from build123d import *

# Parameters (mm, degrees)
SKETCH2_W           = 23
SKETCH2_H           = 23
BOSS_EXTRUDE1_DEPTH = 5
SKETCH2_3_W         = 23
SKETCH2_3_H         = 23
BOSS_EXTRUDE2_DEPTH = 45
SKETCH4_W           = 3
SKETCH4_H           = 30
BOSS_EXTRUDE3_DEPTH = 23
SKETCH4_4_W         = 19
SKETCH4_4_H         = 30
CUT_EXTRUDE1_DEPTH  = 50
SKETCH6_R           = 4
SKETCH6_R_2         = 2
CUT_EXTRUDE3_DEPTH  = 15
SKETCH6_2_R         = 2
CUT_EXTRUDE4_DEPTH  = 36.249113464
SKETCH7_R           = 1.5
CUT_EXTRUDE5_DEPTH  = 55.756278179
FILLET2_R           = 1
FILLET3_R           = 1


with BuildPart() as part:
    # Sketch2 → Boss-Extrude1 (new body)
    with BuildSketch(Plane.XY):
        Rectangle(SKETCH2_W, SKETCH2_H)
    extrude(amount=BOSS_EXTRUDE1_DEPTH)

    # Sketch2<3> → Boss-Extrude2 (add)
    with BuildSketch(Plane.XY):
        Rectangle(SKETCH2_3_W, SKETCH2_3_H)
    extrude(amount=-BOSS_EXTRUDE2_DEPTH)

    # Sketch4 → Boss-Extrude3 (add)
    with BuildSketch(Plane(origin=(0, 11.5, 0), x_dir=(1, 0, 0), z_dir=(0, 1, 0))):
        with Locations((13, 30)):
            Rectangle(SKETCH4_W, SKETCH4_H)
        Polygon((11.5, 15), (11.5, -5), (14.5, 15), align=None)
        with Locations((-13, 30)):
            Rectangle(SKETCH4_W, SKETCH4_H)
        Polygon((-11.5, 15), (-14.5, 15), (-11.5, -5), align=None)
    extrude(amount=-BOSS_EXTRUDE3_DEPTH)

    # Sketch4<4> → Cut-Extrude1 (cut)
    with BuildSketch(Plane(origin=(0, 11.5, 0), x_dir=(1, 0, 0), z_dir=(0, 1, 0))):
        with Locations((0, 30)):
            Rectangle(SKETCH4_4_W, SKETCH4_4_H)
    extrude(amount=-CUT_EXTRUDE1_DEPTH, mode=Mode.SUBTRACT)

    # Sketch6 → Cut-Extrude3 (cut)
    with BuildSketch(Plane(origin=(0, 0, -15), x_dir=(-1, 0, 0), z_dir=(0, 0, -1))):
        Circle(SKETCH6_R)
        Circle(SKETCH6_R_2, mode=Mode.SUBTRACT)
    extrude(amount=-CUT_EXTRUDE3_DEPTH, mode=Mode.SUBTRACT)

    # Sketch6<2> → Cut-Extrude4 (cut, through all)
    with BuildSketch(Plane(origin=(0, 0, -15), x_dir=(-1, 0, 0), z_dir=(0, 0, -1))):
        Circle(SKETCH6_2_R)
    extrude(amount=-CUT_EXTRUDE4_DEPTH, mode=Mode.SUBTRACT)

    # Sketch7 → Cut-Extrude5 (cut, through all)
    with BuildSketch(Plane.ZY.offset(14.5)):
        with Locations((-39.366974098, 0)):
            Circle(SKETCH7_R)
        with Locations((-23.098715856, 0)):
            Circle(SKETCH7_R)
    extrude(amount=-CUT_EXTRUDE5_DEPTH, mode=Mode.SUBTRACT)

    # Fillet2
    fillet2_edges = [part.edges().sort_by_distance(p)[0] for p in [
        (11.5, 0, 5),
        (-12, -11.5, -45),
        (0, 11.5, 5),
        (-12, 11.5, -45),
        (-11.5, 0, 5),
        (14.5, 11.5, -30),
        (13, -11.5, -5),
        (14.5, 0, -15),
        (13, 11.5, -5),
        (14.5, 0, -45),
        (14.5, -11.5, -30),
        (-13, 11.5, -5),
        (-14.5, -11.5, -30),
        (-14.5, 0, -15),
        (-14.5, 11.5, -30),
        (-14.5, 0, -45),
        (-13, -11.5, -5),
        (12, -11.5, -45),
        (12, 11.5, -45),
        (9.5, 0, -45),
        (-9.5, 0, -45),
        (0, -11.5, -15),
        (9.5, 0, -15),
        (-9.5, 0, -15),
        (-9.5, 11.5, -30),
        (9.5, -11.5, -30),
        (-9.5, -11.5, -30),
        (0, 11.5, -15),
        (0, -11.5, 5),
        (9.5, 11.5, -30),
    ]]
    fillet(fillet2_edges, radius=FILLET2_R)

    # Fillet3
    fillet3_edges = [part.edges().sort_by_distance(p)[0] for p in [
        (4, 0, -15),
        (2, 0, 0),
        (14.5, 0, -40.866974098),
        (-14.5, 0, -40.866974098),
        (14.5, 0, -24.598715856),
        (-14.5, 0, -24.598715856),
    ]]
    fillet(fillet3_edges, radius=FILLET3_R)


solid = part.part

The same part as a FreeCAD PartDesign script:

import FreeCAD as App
import Part
import Sketcher
from FreeCAD import Vector
Q = App.Units.Quantity


def edges_at(feature, points):
    """Names of the edges that pass closest to the given points."""
    edges = feature.Shape.Edges
    near = lambda p: min(range(len(edges)), key=lambda i: edges[i].distToShape(Part.Vertex(*p))[0])
    return sorted({f"Edge{near(p) + 1}" for p in points})


def add_polygon(sketch, points):
    """Adds a closed chain of lines whose ends are joined by coincident constraints."""
    first, n = sketch.GeometryCount, len(points)
    for a, b in zip(points, points[1:] + points[:1]):
        sketch.addGeometry(Part.LineSegment(App.Vector(*a, 0), App.Vector(*b, 0)), False)
    for i in range(n):
        sketch.addConstraint(Sketcher.Constraint("Coincident", first + i, 2, first + (i + 1) % n, 1))

doc = App.newDocument("Part")
body = doc.addObject("PartDesign::Body", "Body")

sketch1 = body.newObject("Sketcher::SketchObject", "Sketch")
sketch1.AttachmentSupport = (doc.getObject("XY_Plane"), [""])
sketch1.MapMode = "FlatFace"
add_polygon(sketch1, [(-11.5, 11.5), (-11.5, -11.5), (11.5, -11.5), (11.5, 11.5)])
sketch1.addConstraint([
    Sketcher.Constraint("Vertical", 0),
    Sketcher.Constraint("Horizontal", 1),
    Sketcher.Constraint("Vertical", 2),
    Sketcher.Constraint("Horizontal", 3),
    Sketcher.Constraint("Symmetric", 0, 2, 2, 2, -1, 1),
    Sketcher.Constraint("Equal", 3, 0),
    Sketcher.Constraint("DistanceX", 1, 1, 1, 2, Q("23 mm")),
])
pad1 = body.newObject("PartDesign::Pad", "Pad")
pad1.Profile = sketch1
pad1.Length = 5

sketch2 = body.newObject("Sketcher::SketchObject", "Sketch001")
sketch2.AttachmentSupport = (doc.getObject("XY_Plane"), [""])
sketch2.MapMode = "FlatFace"
add_polygon(sketch2, [(-11.5, 11.5), (-11.5, -11.5), (11.5, -11.5), (11.5, 11.5)])
sketch2.addConstraint([
    Sketcher.Constraint("Vertical", 0),
    Sketcher.Constraint("Horizontal", 1),
    Sketcher.Constraint("Vertical", 2),
    Sketcher.Constraint("Horizontal", 3),
    Sketcher.Constraint("Symmetric", 0, 2, 2, 2, -1, 1),
    Sketcher.Constraint("Equal", 3, 0),
    Sketcher.Constraint("DistanceX", 1, 1, 1, 2, Q("23 mm")),
])
pad2 = body.newObject("PartDesign::Pad", "Pad001")
pad2.Profile = sketch2
pad2.Length = 45
pad2.Reversed = True

sketch3 = body.newObject("Sketcher::SketchObject", "Sketch002")
sketch3.AttachmentSupport = (doc.getObject("XZ_Plane"), [""])
sketch3.MapMode = "FlatFace"
sketch3.AttachmentOffset = App.Placement(Vector(0, 0, -11.5), App.Rotation())
add_polygon(sketch3, [(11.5, -45), (11.5, 5), (14.5, -15), (14.5, -45)])
add_polygon(sketch3, [(-14.5, -45), (-14.5, -15), (-11.5, 5), (-11.5, -45)])
sketch3.addConstraint([
    Sketcher.Constraint("Vertical", 0),
    Sketcher.Constraint("Vertical", 2),
    Sketcher.Constraint("Horizontal", 3),
    Sketcher.Constraint("Vertical", 4),
    Sketcher.Constraint("Vertical", 6),
    Sketcher.Constraint("Horizontal", 7),
    Sketcher.Constraint("Symmetric", 1, 2, 4, 2, -2),
    Sketcher.Constraint("Symmetric", 0, 2, 5, 2, -2),
    Sketcher.Constraint("Horizontal", 3, 2, 6, 2),
    Sketcher.Constraint("DistanceX", 3, 2, 3, 1, Q("3 mm")),
    Sketcher.Constraint("DistanceY", 0, 1, 0, 2, Q("50 mm")),
    Sketcher.Constraint("DistanceY", 2, 2, 2, 1, Q("30 mm")),
    Sketcher.Constraint("DistanceY", -1, 1, 0, 2, Q("5 mm")),
    Sketcher.Constraint("DistanceX", 4, 2, 1, 2, Q("29 mm")),
])
pad3 = body.newObject("PartDesign::Pad", "Pad002")
pad3.Profile = sketch3
pad3.Length = 23

sketch4 = body.newObject("Sketcher::SketchObject", "Sketch003")
sketch4.AttachmentSupport = (doc.getObject("XZ_Plane"), [""])
sketch4.MapMode = "FlatFace"
sketch4.AttachmentOffset = App.Placement(Vector(0, 0, -11.5), App.Rotation())
add_polygon(sketch4, [(-9.5, -45), (-9.5, -15), (9.5, -15), (9.5, -45)])
sketch4.addConstraint([
    Sketcher.Constraint("Vertical", 0),
    Sketcher.Constraint("Horizontal", 1),
    Sketcher.Constraint("Vertical", 2),
    Sketcher.Constraint("Horizontal", 3),
    Sketcher.Constraint("DistanceX", 1, 1, 1, 2, Q("19 mm")),
    Sketcher.Constraint("DistanceY", 0, 1, 0, 2, Q("30 mm")),
    Sketcher.Constraint("DistanceY", 0, 2, -1, 1, Q("15 mm")),
    Sketcher.Constraint("DistanceX", 0, 2, -1, 1, Q("9.5 mm")),
])
pocket1 = body.newObject("PartDesign::Pocket", "Pocket")
pocket1.Profile = sketch4
pocket1.Length = 50
pocket1.Reversed = True

sketch5 = body.newObject("Sketcher::SketchObject", "Sketch004")
sketch5.AttachmentSupport = (doc.getObject("XY_Plane"), [""])
sketch5.MapMode = "FlatFace"
sketch5.AttachmentOffset = App.Placement(Vector(0, 0, -15), App.Rotation())
sketch5.addGeometry([
    Part.Circle(Vector(0, 0, 0), Vector(0, 0, 1), 4),
    Part.Circle(Vector(0, 0, 0), Vector(0, 0, 1), 2),
], False)
sketch5.addConstraint([
    Sketcher.Constraint("Coincident", 0, 3, -1, 1),
    Sketcher.Constraint("Coincident", 1, 3, -1, 1),
    Sketcher.Constraint("Diameter", 0, Q("8 mm")),
    Sketcher.Constraint("Diameter", 1, Q("4 mm")),
])
pocket2 = body.newObject("PartDesign::Pocket", "Pocket001")
pocket2.Profile = sketch5
pocket2.Length = 15
pocket2.Reversed = True

sketch6 = body.newObject("Sketcher::SketchObject", "Sketch005")
sketch6.AttachmentSupport = (doc.getObject("XY_Plane"), [""])
sketch6.MapMode = "FlatFace"
sketch6.AttachmentOffset = App.Placement(Vector(0, 0, -15), App.Rotation())
sketch6.addGeometry(Part.Circle(Vector(0, 0, 0), Vector(0, 0, 1), 2), False)
sketch6.addConstraint([
    Sketcher.Constraint("Coincident", 0, 3, -1, 1),
    Sketcher.Constraint("Diameter", 0, Q("4 mm")),
])
pocket3 = body.newObject("PartDesign::Pocket", "Pocket002")
pocket3.Profile = sketch6
pocket3.Type = "ThroughAll"
pocket3.Reversed = True

sketch7 = body.newObject("Sketcher::SketchObject", "Sketch006")
sketch7.AttachmentSupport = (doc.getObject("YZ_Plane"), [""])
sketch7.MapMode = "FlatFace"
sketch7.AttachmentOffset = App.Placement(Vector(0, 0, -14.5), App.Rotation())
sketch7.addGeometry([
    Part.Circle(Vector(0, -39.366974, 0), Vector(0, 0, 1), 1.5),
    Part.Circle(Vector(0, -23.098716, 0), Vector(0, 0, 1), 1.5),
], False)
sketch7.addConstraint([
    Sketcher.Constraint("Equal", 0, 1),
    Sketcher.Constraint("PointOnObject", 0, 3, -2),
    Sketcher.Constraint("PointOnObject", 1, 3, -2),
    Sketcher.Constraint("Diameter", 0, Q("3 mm")),
    Sketcher.Constraint("DistanceY", 0, 3, 1, 3, Q("16.268258 mm")),
    Sketcher.Constraint("DistanceY", 0, 3, -1, 1, Q("39.366974 mm")),
])
pocket4 = body.newObject("PartDesign::Pocket", "Pocket003")
pocket4.Profile = sketch7
pocket4.Type = "ThroughAll"
pocket4.Reversed = True
doc.recompute()

fillet = body.newObject("PartDesign::Fillet", "Fillet")
fillet.Base = (pocket4, edges_at(pocket4, [
    (11.5, 0, 5),
    (-12, -11.5, -45),
    (0, 11.5, 5),
    (-12, 11.5, -45),
    (-11.5, 0, 5),
    (14.5, 11.5, -30),
    (13, -11.5, -5),
    (14.5, 0, -15),
    (13, 11.5, -5),
    (14.5, 0, -45),
    (14.5, -11.5, -30),
    (-13, 11.5, -5),
    (-14.5, -11.5, -30),
    (-14.5, 0, -15),
    (-14.5, 11.5, -30),
    (-14.5, 0, -45),
    (-13, -11.5, -5),
    (12, -11.5, -45),
    (12, 11.5, -45),
    (9.5, 0, -45),
    (-9.5, 0, -45),
    (0, -11.5, -15),
    (9.5, 0, -15),
    (-9.5, 0, -15),
    (-9.5, 11.5, -30),
    (9.5, -11.5, -30),
    (-9.5, -11.5, -30),
    (0, 11.5, -15),
    (0, -11.5, 5),
    (9.5, 11.5, -30),
]))
fillet.Radius = 1
doc.recompute()

fillet2 = body.newObject("PartDesign::Fillet", "Fillet001")
fillet2.Base = (fillet, edges_at(fillet, [
    (4, 0, -15),
    (2, 0, 0),
    (14.5, 0, -40.867),
    (-14.5, 0, -40.867),
    (14.5, 0, -24.599),
    (-14.5, 0, -24.599),
]))
fillet2.Radius = 1

doc.recompute()
